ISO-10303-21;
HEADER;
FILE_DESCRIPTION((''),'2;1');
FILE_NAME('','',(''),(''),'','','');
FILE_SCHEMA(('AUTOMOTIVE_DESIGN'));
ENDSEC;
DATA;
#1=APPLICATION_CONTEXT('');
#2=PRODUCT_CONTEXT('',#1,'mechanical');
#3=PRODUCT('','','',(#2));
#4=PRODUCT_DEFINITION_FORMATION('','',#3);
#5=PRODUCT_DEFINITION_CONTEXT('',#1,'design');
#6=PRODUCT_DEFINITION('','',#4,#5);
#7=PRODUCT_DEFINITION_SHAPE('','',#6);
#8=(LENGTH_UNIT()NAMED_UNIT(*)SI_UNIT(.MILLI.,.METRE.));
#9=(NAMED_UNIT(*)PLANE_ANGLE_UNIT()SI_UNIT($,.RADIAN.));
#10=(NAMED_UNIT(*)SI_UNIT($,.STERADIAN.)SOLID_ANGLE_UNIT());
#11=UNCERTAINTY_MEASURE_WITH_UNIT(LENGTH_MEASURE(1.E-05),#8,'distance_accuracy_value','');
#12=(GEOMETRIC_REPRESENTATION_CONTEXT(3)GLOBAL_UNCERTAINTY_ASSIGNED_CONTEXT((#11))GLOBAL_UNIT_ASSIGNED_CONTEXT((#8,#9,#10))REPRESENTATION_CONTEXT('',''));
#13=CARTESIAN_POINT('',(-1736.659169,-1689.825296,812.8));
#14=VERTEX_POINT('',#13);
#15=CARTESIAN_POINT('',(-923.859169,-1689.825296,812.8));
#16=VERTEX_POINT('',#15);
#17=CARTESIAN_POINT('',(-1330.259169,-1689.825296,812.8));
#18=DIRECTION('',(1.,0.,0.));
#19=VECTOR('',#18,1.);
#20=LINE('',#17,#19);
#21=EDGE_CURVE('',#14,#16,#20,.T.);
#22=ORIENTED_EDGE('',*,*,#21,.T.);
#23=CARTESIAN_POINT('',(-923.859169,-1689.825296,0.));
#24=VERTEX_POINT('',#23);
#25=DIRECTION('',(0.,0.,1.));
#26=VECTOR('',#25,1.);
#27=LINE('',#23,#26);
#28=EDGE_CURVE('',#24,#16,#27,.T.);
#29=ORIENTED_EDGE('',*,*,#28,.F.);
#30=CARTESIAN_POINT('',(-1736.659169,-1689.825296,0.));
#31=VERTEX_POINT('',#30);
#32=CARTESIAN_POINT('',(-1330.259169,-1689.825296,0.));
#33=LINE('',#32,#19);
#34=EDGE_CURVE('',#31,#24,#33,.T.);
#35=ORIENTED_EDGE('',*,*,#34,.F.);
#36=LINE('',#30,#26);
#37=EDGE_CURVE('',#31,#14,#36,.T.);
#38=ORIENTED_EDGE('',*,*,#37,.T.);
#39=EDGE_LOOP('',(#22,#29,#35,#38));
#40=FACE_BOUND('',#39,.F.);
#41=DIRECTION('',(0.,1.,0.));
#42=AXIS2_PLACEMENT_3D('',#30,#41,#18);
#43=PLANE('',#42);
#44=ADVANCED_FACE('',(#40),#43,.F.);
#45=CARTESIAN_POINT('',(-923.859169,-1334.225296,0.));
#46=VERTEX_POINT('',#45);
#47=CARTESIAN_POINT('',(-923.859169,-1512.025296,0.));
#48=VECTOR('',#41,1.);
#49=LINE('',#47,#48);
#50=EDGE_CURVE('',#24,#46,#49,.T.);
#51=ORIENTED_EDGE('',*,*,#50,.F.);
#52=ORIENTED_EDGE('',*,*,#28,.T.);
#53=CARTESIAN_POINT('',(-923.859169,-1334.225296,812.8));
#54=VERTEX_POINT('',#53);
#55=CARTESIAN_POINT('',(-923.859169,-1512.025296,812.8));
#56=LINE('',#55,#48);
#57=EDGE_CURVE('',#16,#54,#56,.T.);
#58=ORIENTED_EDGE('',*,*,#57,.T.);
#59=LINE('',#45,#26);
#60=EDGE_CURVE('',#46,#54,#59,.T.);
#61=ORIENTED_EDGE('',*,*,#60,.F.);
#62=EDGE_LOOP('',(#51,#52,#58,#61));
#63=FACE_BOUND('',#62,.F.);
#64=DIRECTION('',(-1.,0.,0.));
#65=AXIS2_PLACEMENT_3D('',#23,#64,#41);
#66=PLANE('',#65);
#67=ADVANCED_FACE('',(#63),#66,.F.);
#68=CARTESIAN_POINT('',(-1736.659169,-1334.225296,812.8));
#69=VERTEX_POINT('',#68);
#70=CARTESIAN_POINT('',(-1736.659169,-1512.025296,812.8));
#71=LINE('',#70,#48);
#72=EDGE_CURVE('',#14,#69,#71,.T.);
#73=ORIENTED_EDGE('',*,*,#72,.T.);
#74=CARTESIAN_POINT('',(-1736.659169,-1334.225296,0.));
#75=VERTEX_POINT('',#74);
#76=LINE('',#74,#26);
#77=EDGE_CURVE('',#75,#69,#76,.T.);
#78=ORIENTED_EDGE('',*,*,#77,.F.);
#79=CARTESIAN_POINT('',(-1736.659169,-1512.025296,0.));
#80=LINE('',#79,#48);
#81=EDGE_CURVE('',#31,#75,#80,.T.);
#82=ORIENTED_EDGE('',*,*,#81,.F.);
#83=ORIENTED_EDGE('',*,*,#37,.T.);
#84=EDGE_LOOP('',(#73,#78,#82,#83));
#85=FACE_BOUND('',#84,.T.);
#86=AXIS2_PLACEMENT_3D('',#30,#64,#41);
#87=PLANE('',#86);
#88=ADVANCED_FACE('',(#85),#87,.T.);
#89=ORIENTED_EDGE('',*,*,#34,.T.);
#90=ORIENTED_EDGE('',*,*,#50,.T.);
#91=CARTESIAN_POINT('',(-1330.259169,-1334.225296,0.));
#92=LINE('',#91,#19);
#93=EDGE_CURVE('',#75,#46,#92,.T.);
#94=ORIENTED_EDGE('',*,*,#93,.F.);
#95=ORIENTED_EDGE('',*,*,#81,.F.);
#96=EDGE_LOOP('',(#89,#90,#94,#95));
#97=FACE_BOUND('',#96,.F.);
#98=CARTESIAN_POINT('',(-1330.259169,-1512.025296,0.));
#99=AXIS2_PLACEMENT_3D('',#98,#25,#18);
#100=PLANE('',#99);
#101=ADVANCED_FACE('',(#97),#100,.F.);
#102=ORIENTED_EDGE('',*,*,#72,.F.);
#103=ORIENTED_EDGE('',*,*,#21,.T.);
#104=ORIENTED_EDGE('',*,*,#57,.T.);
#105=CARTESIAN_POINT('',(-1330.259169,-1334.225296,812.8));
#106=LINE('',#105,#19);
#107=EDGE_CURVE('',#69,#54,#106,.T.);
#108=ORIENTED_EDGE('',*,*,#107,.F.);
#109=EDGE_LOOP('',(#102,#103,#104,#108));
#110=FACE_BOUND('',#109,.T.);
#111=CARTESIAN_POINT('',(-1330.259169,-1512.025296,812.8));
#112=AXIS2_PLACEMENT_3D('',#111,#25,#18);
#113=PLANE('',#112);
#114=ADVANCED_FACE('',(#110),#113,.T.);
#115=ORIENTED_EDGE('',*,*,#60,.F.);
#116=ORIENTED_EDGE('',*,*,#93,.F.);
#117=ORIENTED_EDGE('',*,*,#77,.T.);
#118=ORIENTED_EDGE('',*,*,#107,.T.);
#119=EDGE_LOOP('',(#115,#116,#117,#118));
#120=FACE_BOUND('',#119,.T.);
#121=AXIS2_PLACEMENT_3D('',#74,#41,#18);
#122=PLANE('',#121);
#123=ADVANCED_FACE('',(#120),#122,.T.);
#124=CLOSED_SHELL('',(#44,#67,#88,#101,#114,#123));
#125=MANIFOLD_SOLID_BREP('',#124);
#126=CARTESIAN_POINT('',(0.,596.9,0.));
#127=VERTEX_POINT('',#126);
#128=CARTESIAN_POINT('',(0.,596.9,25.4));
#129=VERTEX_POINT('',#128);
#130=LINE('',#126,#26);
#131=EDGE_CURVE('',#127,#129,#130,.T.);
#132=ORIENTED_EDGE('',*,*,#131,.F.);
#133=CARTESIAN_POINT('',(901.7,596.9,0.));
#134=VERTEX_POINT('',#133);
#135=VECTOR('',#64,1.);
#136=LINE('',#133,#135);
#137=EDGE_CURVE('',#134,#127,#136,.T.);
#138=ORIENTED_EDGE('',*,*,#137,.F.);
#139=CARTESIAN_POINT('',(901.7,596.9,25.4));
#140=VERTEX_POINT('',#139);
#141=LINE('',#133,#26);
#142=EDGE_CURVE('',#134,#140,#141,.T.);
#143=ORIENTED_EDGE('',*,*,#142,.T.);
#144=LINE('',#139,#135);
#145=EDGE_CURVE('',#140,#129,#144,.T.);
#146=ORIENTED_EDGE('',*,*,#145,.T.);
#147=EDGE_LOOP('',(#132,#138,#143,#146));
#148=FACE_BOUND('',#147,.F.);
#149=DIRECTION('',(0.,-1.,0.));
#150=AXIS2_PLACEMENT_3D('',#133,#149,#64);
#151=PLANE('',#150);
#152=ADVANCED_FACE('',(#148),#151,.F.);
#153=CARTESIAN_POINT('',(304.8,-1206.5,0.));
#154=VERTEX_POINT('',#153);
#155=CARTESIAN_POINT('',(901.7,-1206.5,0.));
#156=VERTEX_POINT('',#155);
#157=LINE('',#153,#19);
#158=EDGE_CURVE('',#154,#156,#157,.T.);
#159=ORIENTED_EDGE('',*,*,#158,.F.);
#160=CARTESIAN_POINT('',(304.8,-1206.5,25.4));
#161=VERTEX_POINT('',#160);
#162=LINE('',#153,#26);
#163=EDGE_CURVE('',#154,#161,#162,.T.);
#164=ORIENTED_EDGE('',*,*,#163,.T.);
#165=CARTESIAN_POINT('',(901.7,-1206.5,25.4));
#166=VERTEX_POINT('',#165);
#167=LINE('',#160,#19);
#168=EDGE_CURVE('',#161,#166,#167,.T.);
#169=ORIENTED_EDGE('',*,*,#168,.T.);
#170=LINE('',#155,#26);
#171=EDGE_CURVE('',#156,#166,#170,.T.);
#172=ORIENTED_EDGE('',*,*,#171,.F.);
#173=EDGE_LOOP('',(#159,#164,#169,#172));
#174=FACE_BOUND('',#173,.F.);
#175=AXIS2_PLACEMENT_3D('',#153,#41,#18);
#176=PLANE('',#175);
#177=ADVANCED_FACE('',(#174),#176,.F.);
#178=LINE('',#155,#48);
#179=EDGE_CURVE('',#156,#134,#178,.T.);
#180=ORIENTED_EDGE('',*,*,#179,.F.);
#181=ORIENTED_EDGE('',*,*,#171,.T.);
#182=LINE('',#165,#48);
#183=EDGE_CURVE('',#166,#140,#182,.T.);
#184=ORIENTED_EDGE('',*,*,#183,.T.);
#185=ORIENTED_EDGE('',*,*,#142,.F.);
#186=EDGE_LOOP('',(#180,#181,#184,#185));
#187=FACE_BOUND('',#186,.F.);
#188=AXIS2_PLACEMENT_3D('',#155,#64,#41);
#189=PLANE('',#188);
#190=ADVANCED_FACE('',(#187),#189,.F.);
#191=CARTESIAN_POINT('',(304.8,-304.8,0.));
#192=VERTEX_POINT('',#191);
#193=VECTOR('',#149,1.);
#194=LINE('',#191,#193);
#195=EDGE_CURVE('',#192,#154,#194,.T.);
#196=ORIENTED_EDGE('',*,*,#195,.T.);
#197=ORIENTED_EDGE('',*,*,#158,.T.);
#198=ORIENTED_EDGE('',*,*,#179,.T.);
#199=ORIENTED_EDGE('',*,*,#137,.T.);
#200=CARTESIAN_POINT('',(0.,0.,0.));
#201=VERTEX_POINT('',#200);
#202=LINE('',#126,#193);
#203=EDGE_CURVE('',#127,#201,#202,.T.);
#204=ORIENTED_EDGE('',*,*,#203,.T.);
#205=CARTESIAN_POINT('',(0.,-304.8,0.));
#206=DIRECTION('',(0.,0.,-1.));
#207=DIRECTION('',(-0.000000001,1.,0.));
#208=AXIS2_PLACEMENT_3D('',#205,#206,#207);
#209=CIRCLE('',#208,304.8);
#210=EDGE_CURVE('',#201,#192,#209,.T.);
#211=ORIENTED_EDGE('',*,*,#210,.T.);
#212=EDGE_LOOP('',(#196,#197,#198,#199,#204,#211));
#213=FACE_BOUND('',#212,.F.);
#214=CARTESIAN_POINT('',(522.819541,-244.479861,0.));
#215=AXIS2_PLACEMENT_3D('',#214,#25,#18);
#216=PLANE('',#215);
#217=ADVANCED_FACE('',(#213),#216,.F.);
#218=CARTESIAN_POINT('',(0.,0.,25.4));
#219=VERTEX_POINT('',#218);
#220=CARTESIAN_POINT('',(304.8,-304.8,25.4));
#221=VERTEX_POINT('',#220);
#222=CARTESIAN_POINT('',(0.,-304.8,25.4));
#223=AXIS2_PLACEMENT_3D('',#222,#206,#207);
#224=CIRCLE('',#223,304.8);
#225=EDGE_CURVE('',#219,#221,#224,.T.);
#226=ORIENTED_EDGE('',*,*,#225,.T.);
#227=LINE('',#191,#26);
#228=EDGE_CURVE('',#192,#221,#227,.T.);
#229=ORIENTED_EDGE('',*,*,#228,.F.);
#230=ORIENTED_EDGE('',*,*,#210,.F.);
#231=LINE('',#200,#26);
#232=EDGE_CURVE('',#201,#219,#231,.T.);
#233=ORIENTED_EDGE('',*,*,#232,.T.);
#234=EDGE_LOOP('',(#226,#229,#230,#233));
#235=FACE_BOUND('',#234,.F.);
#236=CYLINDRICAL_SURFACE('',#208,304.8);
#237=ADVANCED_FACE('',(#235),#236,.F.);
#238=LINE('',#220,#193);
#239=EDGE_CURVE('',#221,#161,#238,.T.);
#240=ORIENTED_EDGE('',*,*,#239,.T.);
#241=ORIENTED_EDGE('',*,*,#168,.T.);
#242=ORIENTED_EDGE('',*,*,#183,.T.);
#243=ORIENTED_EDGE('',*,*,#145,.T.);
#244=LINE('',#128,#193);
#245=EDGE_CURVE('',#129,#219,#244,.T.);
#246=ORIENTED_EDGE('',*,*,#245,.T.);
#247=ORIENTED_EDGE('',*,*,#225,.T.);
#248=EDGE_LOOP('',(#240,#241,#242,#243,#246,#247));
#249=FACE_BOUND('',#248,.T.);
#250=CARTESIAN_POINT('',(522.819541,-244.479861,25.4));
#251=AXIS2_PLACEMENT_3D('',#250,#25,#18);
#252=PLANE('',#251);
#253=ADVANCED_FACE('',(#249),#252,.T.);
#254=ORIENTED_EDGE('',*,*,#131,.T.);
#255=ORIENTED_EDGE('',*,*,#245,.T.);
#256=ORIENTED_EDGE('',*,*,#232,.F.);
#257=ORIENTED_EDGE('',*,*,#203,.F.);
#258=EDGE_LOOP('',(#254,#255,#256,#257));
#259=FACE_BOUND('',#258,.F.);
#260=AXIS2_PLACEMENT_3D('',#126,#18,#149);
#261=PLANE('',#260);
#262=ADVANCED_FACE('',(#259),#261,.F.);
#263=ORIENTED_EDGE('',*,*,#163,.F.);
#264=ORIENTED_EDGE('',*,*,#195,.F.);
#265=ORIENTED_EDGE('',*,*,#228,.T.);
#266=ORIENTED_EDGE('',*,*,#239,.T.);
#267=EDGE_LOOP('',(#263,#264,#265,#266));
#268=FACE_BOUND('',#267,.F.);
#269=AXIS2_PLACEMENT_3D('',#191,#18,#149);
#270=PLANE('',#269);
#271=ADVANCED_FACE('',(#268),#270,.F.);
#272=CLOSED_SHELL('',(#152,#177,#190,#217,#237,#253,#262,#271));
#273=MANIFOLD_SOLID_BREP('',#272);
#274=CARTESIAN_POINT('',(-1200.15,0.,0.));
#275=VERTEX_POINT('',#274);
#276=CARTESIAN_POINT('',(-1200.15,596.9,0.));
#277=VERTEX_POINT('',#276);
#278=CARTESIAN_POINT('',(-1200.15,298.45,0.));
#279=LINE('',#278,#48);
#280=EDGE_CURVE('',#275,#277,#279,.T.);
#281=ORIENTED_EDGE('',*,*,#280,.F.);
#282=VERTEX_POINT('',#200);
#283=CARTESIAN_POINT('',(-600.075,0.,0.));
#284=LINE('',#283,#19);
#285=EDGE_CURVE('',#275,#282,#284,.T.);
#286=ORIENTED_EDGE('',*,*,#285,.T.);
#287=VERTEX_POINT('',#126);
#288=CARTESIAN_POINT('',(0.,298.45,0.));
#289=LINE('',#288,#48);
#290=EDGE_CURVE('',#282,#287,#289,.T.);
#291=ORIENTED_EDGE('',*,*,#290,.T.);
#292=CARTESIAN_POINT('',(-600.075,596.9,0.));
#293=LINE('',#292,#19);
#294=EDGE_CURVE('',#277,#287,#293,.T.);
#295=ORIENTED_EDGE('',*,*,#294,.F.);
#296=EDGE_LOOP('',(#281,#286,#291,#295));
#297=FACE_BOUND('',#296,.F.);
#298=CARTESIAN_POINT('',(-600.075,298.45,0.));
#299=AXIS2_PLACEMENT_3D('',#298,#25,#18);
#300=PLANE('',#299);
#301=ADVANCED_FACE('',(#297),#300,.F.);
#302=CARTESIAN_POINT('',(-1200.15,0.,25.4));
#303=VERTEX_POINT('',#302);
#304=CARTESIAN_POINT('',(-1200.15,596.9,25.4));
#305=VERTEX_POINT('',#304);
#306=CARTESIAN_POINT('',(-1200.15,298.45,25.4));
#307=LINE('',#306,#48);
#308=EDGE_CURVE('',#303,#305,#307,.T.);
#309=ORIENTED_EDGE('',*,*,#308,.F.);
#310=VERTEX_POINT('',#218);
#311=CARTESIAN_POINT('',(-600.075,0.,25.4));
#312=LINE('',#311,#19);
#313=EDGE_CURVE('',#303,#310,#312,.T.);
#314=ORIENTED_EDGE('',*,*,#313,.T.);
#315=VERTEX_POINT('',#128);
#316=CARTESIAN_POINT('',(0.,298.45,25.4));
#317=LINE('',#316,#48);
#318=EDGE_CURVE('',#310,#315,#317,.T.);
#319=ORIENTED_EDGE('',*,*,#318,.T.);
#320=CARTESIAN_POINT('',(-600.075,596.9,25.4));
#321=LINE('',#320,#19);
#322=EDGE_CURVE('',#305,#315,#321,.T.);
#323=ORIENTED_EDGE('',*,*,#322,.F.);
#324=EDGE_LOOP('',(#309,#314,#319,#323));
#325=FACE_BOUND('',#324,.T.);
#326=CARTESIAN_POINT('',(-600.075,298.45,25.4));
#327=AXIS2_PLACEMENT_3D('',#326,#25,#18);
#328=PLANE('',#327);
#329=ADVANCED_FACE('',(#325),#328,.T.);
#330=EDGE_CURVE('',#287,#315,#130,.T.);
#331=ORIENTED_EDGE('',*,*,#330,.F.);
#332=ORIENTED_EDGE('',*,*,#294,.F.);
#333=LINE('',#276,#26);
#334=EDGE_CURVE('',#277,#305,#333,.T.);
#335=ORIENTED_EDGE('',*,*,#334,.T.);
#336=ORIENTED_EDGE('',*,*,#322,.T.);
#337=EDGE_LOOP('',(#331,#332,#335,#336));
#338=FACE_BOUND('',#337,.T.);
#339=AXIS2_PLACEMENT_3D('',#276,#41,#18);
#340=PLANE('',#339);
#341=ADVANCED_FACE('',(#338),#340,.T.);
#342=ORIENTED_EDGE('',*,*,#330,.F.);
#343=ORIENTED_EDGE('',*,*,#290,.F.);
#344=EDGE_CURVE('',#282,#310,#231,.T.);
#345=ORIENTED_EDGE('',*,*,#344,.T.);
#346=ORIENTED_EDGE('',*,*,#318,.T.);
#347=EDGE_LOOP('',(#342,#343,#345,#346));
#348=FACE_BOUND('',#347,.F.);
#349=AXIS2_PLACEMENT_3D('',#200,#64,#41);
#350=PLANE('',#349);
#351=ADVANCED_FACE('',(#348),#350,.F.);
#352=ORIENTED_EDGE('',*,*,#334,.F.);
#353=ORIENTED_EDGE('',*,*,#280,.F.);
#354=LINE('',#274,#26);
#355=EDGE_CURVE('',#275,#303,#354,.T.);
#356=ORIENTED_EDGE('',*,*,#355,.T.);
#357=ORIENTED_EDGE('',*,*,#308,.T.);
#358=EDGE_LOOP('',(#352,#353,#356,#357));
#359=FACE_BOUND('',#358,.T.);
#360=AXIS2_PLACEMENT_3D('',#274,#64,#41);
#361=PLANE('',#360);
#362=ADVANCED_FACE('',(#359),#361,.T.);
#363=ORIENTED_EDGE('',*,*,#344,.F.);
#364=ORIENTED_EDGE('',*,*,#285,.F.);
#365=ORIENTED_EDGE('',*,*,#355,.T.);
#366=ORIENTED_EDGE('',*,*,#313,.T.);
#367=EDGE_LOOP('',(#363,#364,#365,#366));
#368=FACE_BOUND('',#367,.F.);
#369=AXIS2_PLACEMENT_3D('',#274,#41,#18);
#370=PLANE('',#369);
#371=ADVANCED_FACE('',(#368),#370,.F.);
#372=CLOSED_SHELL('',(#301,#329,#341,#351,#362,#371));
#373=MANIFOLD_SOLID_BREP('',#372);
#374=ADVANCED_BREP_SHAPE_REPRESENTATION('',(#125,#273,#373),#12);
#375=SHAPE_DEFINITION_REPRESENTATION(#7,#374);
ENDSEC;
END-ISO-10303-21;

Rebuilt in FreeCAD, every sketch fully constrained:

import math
import FreeCAD as App
import Part
import Sketcher
Q = App.Units.Quantity


def add_polygon(sketch, points):
    """Adds a closed chain of lines whose ends are joined by coincident constraints."""
    first, n = sketch.GeometryCount, len(points)
    for a, b in zip(points, points[1:] + points[:1]):
        sketch.addGeometry(Part.LineSegment(App.Vector(*a, 0), App.Vector(*b, 0)), False)
    for i in range(n):
        sketch.addConstraint(Sketcher.Constraint("Coincident", first + i, 2, first + (i + 1) % n, 1))

doc = App.newDocument("Part")
body = doc.addObject("PartDesign::Body", "Body")

# Sketch on XY plane
sketch1 = body.newObject("Sketcher::SketchObject", "Sketch")
sketch1.AttachmentSupport = (doc.getObject("XY_Plane"), [""])
sketch1.MapMode = "FlatFace"
add_polygon(sketch1, [(-1200, 597), (-1200, 0), (0, 0), (0, 597)])  # lines 0-3
sketch1.addConstraint([
    Sketcher.Constraint("Vertical", 0),
    Sketcher.Constraint("Horizontal", 1),
    Sketcher.Constraint("Vertical", 2),
    Sketcher.Constraint("Horizontal", 3),
    Sketcher.Constraint("Coincident", 1, 2, -1, 1),
    Sketcher.Constraint("DistanceY", 0, 2, 0, 1, Q("23.5 in")),
    Sketcher.Constraint("DistanceX", 1, 1, 1, 2, Q("47.25 in")),
])
pad1 = body.newObject("PartDesign::Pad", "Pad")
pad1.Profile = sketch1
pad1.Length = Q("1 in")
body2 = doc.addObject("PartDesign::Body", "Body001")

# Sketch on XY plane
sketch2 = body2.newObject("Sketcher::SketchObject", "Sketch001")
sketch2.AttachmentSupport = (doc.getObject("XY_Plane001"), [""])
sketch2.MapMode = "FlatFace"
sketch2.addGeometry([
    Part.LineSegment(App.Vector(0, 597, 0), App.Vector(0, 0, 0)),  # 0
    Part.ArcOfCircle(Part.Circle(App.Vector(0, -305, 0), App.Vector(0, 0, 1), 305), math.radians(0), math.radians(90)),  # 1
    Part.LineSegment(App.Vector(305, -305, 0), App.Vector(305, -1206, 0)),  # 2
    Part.LineSegment(App.Vector(305, -1206, 0), App.Vector(902, -1206, 0)),  # 3
    Part.LineSegment(App.Vector(902, -1206, 0), App.Vector(902, 597, 0)),  # 4
    Part.LineSegment(App.Vector(902, 597, 0), App.Vector(0, 597, 0)),  # 5
], False)
sketch2.addConstraint([
    Sketcher.Constraint("Coincident", 0, 2, 1, 2),
    Sketcher.Constraint("Tangent", 1, 1, 2, 1),
    Sketcher.Constraint("Coincident", 2, 2, 3, 1),
    Sketcher.Constraint("Coincident", 3, 2, 4, 1),
    Sketcher.Constraint("Coincident", 4, 2, 5, 1),
    Sketcher.Constraint("Coincident", 5, 2, 0, 1),
    Sketcher.Constraint("Vertical", 0),
    Sketcher.Constraint("Vertical", 2),
    Sketcher.Constraint("Horizontal", 3),
    Sketcher.Constraint("Vertical", 4),
    Sketcher.Constraint("Horizontal", 5),
    Sketcher.Constraint("Coincident", 0, 2, -1, 1),
    Sketcher.Constraint("PointOnObject", 1, 3, -2),
    Sketcher.Constraint("Equal", 3, 0),
    Sketcher.Constraint("Equal", 5, 2),
    Sketcher.Constraint("Radius", 1, Q("12 in")),
    Sketcher.Constraint("DistanceY", 4, 1, 4, 2, Q("71 in")),
])
pad2 = body2.newObject("PartDesign::Pad", "Pad001")
pad2.Profile = sketch2
pad2.Length = Q("1 in")
body3 = doc.addObject("PartDesign::Body", "Body002")

# Sketch on XY plane
sketch3 = body3.newObject("Sketcher::SketchObject", "Sketch002")
sketch3.AttachmentSupport = (doc.getObject("XY_Plane002"), [""])
sketch3.MapMode = "FlatFace"
add_polygon(sketch3, [(-1737, -1334), (-1737, -1690), (-924, -1690), (-924, -1334)])  # lines 0-3
sketch3.addConstraint([
    Sketcher.Constraint("Vertical", 0),
    Sketcher.Constraint("Horizontal", 1),
    Sketcher.Constraint("Vertical", 2),
    Sketcher.Constraint("Horizontal", 3),
    Sketcher.Constraint("DistanceX", 1, 1, 1, 2, Q("32 in")),
    Sketcher.Constraint("DistanceY", 0, 2, 0, 1, Q("14 in")),
    Sketcher.Constraint("DistanceX", 0, 2, -1, 1, 1736.659169),
    Sketcher.Constraint("DistanceY", 0, 2, -1, 1, 1689.825296),
])
pad3 = body3.newObject("PartDesign::Pad", "Pad002")
pad3.Profile = sketch3
pad3.Length = Q("32 in")

doc.recompute()
